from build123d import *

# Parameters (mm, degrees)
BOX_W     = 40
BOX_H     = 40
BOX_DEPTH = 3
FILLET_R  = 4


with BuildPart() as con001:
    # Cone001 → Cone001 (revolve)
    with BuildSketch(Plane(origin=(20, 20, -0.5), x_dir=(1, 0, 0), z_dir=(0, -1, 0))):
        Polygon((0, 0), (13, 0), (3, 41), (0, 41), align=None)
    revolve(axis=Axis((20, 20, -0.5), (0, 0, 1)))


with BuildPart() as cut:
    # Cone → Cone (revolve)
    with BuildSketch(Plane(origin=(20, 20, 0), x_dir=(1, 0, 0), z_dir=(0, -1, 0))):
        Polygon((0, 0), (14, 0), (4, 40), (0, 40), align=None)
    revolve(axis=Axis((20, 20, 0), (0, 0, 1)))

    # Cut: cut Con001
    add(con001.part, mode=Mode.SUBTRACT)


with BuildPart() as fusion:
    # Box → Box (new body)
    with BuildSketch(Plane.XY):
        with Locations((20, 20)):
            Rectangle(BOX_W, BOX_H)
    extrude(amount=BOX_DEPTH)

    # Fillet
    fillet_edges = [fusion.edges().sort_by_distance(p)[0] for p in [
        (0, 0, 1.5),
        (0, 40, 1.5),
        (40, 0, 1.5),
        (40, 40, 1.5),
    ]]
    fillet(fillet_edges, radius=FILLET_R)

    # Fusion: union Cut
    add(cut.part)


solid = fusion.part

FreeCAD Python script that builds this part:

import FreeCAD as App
import Part
import Sketcher
from FreeCAD import Vector
Q = App.Units.Quantity


def edges_at(feature, points):
    """Names of the edges that pass closest to the given points."""
    edges = feature.Shape.Edges
    near = lambda p: min(range(len(edges)), key=lambda i: edges[i].distToShape(Part.Vertex(*p))[0])
    return sorted({f"Edge{near(p) + 1}" for p in points})

doc = App.newDocument("Part")
body = doc.addObject("PartDesign::Body", "Body")

# Sketch on XZ plane
sketch1 = body.newObject("Sketcher::SketchObject", "Sketch")
sketch1.AttachmentSupport = (doc.getObject("XZ_Plane"), [""])
sketch1.MapMode = "FlatFace"
sketch1.AttachmentOffset = App.Placement(Vector(0, 0, -20), App.Rotation())
sketch1.addGeometry([
    Part.LineSegment(Vector(20, -0.5, 0), Vector(33, -0.5, 0)),
    Part.LineSegment(Vector(33, -0.5, 0), Vector(23, 40.5, 0)),
    Part.LineSegment(Vector(23, 40.5, 0), Vector(20, 40.5, 0)),
    Part.LineSegment(Vector(20, 40.5, 0), Vector(20, -0.5, 0)),
], False)
sketch1.addGeometry(Part.LineSegment(Vector(20, -0.5, 0), Vector(20, 40.5, 0)), True)  # axis
sketch1.addConstraint([
    Sketcher.Constraint("Coincident", 0, 2, 1, 1),
    Sketcher.Constraint("Coincident", 1, 2, 2, 1),
    Sketcher.Constraint("Coincident", 2, 2, 3, 1),
    Sketcher.Constraint("Coincident", 3, 2, 0, 1),
    Sketcher.Constraint("Horizontal", 0),
    Sketcher.Constraint("Horizontal", 2),
    Sketcher.Constraint("Vertical", 3),
    Sketcher.Constraint("Vertical", 4),
    Sketcher.Constraint("Coincident", 4, 1, 3, 2),
    Sketcher.Constraint("Horizontal", 1, 2, 4, 2),
    Sketcher.Constraint("DistanceX", 0, 1, 0, 2, Q("13 mm")),
    Sketcher.Constraint("DistanceX", 2, 2, 2, 1, Q("3 mm")),
    Sketcher.Constraint("DistanceY", 3, 2, 3, 1, Q("41 mm")),
    Sketcher.Constraint("DistanceX", -1, 1, 0, 2, Q("33 mm")),
    Sketcher.Constraint("DistanceY", 0, 2, -1, 1, Q("0.5 mm")),
])
revolution = body.newObject("PartDesign::Revolution", "Revolution")
revolution.Profile = sketch1
revolution.ReferenceAxis = (sketch1, ["Axis0"])
revolution.Angle = 360
body2 = doc.addObject("PartDesign::Body", "Body001")

# Sketch on XZ plane
sketch2 = body2.newObject("Sketcher::SketchObject", "Sketch001")
sketch2.AttachmentSupport = (doc.getObject("XZ_Plane001"), [""])
sketch2.MapMode = "FlatFace"
sketch2.AttachmentOffset = App.Placement(Vector(0, 0, -20), App.Rotation())
sketch2.addGeometry([
    Part.LineSegment(Vector(20, 0, 0), Vector(34, 0, 0)),
    Part.LineSegment(Vector(34, 0, 0), Vector(24, 40, 0)),
    Part.LineSegment(Vector(24, 40, 0), Vector(20, 40, 0)),
    Part.LineSegment(Vector(20, 40, 0), Vector(20, 0, 0)),
], False)
sketch2.addGeometry(Part.LineSegment(Vector(20, 0, 0), Vector(20, 40, 0)), True)  # axis
sketch2.addConstraint([
    Sketcher.Constraint("Coincident", 0, 2, 1, 1),
    Sketcher.Constraint("Coincident", 1, 2, 2, 1),
    Sketcher.Constraint("Coincident", 2, 2, 3, 1),
    Sketcher.Constraint("Coincident", 3, 2, 0, 1),
    Sketcher.Constraint("Horizontal", 0),
    Sketcher.Constraint("Horizontal", 2),
    Sketcher.Constraint("Vertical", 3),
    Sketcher.Constraint("Vertical", 4),
    Sketcher.Constraint("Coincident", 4, 1, 3, 2),
    Sketcher.Constraint("PointOnObject", 0, 2, -1),
    Sketcher.Constraint("Horizontal", 1, 2, 4, 2),
    Sketcher.Constraint("DistanceX", 0, 1, 0, 2, Q("14 mm")),
    Sketcher.Constraint("DistanceX", 2, 2, 2, 1, Q("4 mm")),
    Sketcher.Constraint("DistanceY", 3, 2, 3, 1, Q("40 mm")),
    Sketcher.Constraint("DistanceX", -1, 1, 0, 2, Q("34 mm")),
])
revolution2 = body2.newObject("PartDesign::Revolution", "Revolution001")
revolution2.Profile = sketch2
revolution2.ReferenceAxis = (sketch2, ["Axis0"])
revolution2.Angle = 360
doc.recompute()

boolean = body2.newObject("PartDesign::Boolean", "Boolean")
boolean.Type = "Cut"
boolean.addObjects([body])
body3 = doc.addObject("PartDesign::Body", "Body002")

# Sketch on XY plane
sketch3 = body3.newObject("Sketcher::SketchObject", "Sketch002")
sketch3.AttachmentSupport = (doc.getObject("XY_Plane002"), [""])
sketch3.MapMode = "FlatFace"
sketch3.addGeometry([
    Part.LineSegment(Vector(0, 40, 0), Vector(0, 0, 0)),
    Part.LineSegment(Vector(0, 0, 0), Vector(40, 0, 0)),
    Part.LineSegment(Vector(40, 0, 0), Vector(40, 40, 0)),
    Part.LineSegment(Vector(40, 40, 0), Vector(0, 40, 0)),
], False)
sketch3.addConstraint([
    Sketcher.Constraint("Coincident", 0, 2, 1, 1),
    Sketcher.Constraint("Coincident", 1, 2, 2, 1),
    Sketcher.Constraint("Coincident", 2, 2, 3, 1),
    Sketcher.Constraint("Coincident", 3, 2, 0, 1),
    Sketcher.Constraint("Vertical", 0),
    Sketcher.Constraint("Horizontal", 1),
    Sketcher.Constraint("Vertical", 2),
    Sketcher.Constraint("Horizontal", 3),
    Sketcher.Constraint("Coincident", 0, 2, -1, 1),
    Sketcher.Constraint("Equal", 3, 0),
    Sketcher.Constraint("DistanceX", 1, 1, 1, 2, Q("40 mm")),
])
pad1 = body3.newObject("PartDesign::Pad", "Pad")
pad1.Profile = sketch3
pad1.Length = 3
doc.recompute()

fillet = body3.newObject("PartDesign::Fillet", "Fillet")
fillet.Base = (pad1, edges_at(pad1, [
    (0, 0, 1.5),
    (0, 40, 1.5),
    (40, 0, 1.5),
    (40, 40, 1.5),
]))
fillet.Radius = 4
doc.recompute()

boolean2 = body3.newObject("PartDesign::Boolean", "Boolean001")
boolean2.Type = "Fuse"
boolean2.addObjects([body2])

doc.recompute()
